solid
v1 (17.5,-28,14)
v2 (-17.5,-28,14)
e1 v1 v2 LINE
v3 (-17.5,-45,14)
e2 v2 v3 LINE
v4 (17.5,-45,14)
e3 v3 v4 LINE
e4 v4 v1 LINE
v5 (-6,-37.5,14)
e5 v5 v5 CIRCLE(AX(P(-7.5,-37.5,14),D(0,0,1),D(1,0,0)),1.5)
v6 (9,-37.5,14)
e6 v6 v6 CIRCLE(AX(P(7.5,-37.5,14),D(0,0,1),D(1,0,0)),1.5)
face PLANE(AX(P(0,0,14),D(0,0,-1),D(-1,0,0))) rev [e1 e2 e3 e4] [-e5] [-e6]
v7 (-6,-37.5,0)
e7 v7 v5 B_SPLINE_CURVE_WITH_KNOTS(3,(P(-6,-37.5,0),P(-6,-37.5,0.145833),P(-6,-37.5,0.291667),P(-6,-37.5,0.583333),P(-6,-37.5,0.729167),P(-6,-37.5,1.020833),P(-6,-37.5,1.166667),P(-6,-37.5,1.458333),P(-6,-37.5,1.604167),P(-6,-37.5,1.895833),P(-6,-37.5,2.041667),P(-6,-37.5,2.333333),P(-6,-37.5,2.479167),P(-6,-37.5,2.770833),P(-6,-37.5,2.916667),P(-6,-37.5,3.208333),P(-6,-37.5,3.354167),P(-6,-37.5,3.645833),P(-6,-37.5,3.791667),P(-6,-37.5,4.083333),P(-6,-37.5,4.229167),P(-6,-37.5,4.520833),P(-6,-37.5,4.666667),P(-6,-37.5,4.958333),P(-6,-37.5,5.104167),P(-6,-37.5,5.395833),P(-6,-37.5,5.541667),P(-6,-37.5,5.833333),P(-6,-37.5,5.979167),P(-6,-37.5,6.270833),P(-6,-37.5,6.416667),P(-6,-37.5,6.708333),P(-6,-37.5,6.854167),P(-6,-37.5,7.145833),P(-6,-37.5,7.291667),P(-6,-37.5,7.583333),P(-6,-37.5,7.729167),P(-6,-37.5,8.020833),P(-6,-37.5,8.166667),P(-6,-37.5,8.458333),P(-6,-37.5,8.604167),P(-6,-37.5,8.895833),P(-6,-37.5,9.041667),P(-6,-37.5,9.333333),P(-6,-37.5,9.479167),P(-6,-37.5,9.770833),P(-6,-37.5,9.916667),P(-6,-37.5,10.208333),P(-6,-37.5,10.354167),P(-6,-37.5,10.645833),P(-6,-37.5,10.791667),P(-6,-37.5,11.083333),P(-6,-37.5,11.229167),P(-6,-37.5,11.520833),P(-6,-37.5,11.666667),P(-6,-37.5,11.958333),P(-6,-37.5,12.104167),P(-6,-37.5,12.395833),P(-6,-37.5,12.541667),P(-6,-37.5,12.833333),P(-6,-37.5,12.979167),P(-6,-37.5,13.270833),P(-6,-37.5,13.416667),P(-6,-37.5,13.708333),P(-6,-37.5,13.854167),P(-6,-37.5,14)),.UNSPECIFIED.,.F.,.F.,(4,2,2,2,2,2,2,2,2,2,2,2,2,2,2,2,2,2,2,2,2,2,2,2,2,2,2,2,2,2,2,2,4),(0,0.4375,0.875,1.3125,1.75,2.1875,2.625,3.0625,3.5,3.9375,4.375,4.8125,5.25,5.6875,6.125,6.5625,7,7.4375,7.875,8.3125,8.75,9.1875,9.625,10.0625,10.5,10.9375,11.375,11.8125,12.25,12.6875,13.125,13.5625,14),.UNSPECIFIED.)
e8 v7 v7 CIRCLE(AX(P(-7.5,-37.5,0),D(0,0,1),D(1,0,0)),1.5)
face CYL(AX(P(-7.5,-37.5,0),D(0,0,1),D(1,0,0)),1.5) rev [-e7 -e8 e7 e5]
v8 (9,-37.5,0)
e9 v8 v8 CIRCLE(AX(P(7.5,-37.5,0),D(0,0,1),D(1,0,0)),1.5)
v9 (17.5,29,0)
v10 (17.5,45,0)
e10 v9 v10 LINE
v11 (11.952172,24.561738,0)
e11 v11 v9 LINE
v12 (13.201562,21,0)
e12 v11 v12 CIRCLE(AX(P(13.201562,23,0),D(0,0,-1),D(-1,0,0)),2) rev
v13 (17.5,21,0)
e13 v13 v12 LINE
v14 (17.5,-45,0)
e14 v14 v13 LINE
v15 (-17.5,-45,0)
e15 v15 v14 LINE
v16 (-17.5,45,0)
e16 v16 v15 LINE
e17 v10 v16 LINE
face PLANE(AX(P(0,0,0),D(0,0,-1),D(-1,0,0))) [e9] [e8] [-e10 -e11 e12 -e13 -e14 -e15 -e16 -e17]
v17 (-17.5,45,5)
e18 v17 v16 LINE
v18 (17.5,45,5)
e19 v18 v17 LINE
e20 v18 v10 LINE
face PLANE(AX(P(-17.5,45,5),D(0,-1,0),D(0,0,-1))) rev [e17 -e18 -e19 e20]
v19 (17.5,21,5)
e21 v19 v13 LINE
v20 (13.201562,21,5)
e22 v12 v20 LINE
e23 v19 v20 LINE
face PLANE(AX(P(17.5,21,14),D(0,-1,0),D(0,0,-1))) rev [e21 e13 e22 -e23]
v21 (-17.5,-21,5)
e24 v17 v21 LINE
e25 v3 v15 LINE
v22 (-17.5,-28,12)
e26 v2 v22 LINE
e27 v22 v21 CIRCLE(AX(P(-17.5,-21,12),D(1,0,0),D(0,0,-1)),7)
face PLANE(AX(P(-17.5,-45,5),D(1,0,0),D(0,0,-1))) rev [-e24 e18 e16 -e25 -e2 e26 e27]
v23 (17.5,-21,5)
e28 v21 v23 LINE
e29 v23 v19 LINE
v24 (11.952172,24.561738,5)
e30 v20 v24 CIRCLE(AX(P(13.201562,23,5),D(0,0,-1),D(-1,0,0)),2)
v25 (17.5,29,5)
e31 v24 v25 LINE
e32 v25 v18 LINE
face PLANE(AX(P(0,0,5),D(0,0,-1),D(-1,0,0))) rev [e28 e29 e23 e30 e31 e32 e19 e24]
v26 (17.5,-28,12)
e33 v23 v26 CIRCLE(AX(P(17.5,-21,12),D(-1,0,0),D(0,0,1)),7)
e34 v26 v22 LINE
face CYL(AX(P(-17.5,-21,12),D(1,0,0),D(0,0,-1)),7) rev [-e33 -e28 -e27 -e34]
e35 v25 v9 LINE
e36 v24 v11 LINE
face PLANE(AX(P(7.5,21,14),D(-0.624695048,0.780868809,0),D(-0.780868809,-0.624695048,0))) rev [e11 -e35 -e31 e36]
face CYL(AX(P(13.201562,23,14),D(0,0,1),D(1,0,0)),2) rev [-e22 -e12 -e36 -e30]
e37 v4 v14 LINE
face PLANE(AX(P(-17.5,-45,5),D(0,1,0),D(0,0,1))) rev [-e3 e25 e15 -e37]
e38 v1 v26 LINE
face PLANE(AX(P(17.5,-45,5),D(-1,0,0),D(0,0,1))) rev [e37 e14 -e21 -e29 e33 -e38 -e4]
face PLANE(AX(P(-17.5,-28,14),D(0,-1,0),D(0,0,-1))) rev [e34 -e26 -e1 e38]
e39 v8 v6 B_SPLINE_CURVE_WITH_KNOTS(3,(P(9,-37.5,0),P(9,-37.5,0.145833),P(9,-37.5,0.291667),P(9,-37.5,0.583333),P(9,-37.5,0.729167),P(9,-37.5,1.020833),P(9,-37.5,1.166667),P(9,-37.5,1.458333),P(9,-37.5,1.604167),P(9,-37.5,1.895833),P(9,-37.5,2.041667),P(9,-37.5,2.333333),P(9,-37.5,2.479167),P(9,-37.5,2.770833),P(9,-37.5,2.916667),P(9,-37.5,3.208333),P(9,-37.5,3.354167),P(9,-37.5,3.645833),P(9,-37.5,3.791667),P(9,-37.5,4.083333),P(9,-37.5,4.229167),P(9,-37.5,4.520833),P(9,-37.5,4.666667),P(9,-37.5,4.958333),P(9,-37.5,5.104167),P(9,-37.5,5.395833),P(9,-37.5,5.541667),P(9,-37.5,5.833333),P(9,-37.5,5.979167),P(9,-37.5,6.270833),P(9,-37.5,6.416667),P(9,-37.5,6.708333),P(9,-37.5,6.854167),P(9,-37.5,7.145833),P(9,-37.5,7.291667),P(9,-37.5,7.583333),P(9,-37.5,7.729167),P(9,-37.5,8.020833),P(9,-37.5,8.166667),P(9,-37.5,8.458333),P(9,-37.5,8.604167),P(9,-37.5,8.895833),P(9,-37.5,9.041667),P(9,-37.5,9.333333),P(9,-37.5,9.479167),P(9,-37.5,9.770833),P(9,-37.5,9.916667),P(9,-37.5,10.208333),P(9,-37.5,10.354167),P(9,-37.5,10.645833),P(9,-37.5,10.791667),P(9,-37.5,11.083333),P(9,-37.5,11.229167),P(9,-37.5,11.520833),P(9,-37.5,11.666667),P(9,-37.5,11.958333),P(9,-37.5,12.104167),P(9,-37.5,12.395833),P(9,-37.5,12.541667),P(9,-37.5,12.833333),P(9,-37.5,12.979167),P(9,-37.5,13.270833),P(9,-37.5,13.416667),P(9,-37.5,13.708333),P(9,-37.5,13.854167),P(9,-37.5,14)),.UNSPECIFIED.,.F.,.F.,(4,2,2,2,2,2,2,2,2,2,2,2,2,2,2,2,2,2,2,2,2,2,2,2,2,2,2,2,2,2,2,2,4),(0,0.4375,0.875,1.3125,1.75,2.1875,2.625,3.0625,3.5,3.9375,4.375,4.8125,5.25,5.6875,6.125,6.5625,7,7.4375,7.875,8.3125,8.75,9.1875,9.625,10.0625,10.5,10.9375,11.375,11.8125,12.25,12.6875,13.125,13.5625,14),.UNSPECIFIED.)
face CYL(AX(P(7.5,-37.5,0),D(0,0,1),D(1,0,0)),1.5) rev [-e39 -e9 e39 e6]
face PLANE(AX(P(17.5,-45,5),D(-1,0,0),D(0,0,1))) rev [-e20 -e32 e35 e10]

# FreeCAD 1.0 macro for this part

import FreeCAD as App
import Part
import Sketcher

V = App.Vector


def edges_at(feature, points):
    """Names of the edges that pass closest to the given points."""
    edges = feature.Shape.Edges
    near = lambda p: min(range(len(edges)), key=lambda i: edges[i].distToShape(Part.Vertex(*p))[0])
    return sorted({f"Edge{near(p) + 1}" for p in points})


def add_polygon(sketch, points):
    """Adds a closed chain of lines whose ends are joined by coincident constraints."""
    first, n = sketch.GeometryCount, len(points)
    for a, b in zip(points, points[1:] + points[:1]):
        sketch.addGeometry(Part.LineSegment(App.Vector(*a, 0), App.Vector(*b, 0)), False)
    for i in range(n):
        sketch.addConstraint(Sketcher.Constraint("Coincident", first + i, 2, first + (i + 1) % n, 1))

doc = App.newDocument("Part")
body = doc.addObject("PartDesign::Body", "Body")

# Sketch on XY plane
sketch1 = body.newObject("Sketcher::SketchObject", "Sketch")
sketch1.AttachmentSupport = (doc.getObject("XY_Plane"), [""])
sketch1.MapMode = "FlatFace"
add_polygon(sketch1, [(-17.5, 45), (-17.5, -45), (17.5, -45), (17.5, 45)])  # lines 0-3
sketch1.addConstraint([
    Sketcher.Constraint("Vertical", 0),
    Sketcher.Constraint("Horizontal", 1),
    Sketcher.Constraint("Vertical", 2),
    Sketcher.Constraint("Horizontal", 3),
    Sketcher.Constraint("Symmetric", 0, 2, 2, 2, -1, 1),
    Sketcher.Constraint("DistanceX", 1, 1, 1, 2, 35.0),
    Sketcher.Constraint("DistanceY", 0, 2, 0, 1, 90.0),
])
pad1 = body.newObject("PartDesign::Pad", "Pad")
pad1.Profile = sketch1
pad1.Length = 5

# Sketch on XY plane
sketch2 = body.newObject("Sketcher::SketchObject", "Sketch001")
sketch2.AttachmentSupport = (doc.getObject("XY_Plane"), [""])
sketch2.MapMode = "FlatFace"
sketch2.AttachmentOffset = App.Placement(V(0, 0, 5), App.Rotation())
add_polygon(sketch2, [(-17.5, -28), (-17.5, -45), (17.5, -45), (17.5, -28)])  # lines 0-3
sketch2.addConstraint([
    Sketcher.Constraint("Vertical", 0),
    Sketcher.Constraint("Horizontal", 1),
    Sketcher.Constraint("Vertical", 2),
    Sketcher.Constraint("Horizontal", 3),
    Sketcher.Constraint("DistanceX", 1, 1, 1, 2, 35.0),
    Sketcher.Constraint("DistanceY", 0, 2, 0, 1, 17.0),
    Sketcher.Constraint("DistanceY", 0, 2, -1, 1, 45.0),
    Sketcher.Constraint("DistanceX", 0, 2, -1, 1, 17.5),
])
pad2 = body.newObject("PartDesign::Pad", "Pad001")
pad2.Profile = sketch2
pad2.Length = 9
doc.recompute()

fillet = body.newObject("PartDesign::Fillet", "Fillet")
fillet.Base = (pad2, edges_at(pad2, [(0, -28, 5)]))
fillet.Radius = 7

# Sketch on XY plane
sketch3 = body.newObject("Sketcher::SketchObject", "Sketch002")
sketch3.AttachmentSupport = (doc.getObject("XY_Plane"), [""])
sketch3.MapMode = "FlatFace"
sketch3.AttachmentOffset = App.Placement(V(0, 0, 14), App.Rotation())
sketch3.addGeometry([
    Part.Circle(V(-7.5, -37.5, 0), V(0, 0, 1), 1.5),
    Part.Circle(V(7.5, -37.5, 0), V(0, 0, 1), 1.5),
], False)
sketch3.addConstraint([
    Sketcher.Constraint("Equal", 0, 1),
    Sketcher.Constraint("Symmetric", 0, 3, 1, 3, -2),
    Sketcher.Constraint("Diameter", 0, 3.0),
    Sketcher.Constraint("DistanceX", 0, 3, 1, 3, 15.0),
    Sketcher.Constraint("DistanceY", 0, 3, -1, 1, 37.5),
])
pocket1 = body.newObject("PartDesign::Pocket", "Pocket")
pocket1.Profile = sketch3
pocket1.Type = "ThroughAll"

# Sketch on XY plane
sketch4 = body.newObject("Sketcher::SketchObject", "Sketch003")
sketch4.AttachmentSupport = (doc.getObject("XY_Plane"), [""])
sketch4.MapMode = "FlatFace"
add_polygon(sketch4, [(17.5, 29), (17.5, 21), (7.5, 21)])  # lines 0-2
sketch4.addConstraint([
    Sketcher.Constraint("Vertical", 0),
    Sketcher.Constraint("Horizontal", 1),
    Sketcher.Constraint("DistanceX", 1, 2, 1, 1, 10.0),
    Sketcher.Constraint("DistanceY", 0, 2, 0, 1, 8.0),
    Sketcher.Constraint("DistanceY", -1, 1, 0, 2, 21.0),
    Sketcher.Constraint("DistanceX", -1, 1, 0, 2, 17.5),
])
pocket2 = body.newObject("PartDesign::Pocket", "Pocket001")
pocket2.Profile = sketch4
pocket2.Type = "ThroughAll"
pocket2.Reversed = True
doc.recompute()

fillet2 = body.newObject("PartDesign::Fillet", "Fillet001")
fillet2.Base = (pocket2, edges_at(pocket2, [(7.5, 21, 2.5)]))
fillet2.Radius = 2

doc.recompute()
